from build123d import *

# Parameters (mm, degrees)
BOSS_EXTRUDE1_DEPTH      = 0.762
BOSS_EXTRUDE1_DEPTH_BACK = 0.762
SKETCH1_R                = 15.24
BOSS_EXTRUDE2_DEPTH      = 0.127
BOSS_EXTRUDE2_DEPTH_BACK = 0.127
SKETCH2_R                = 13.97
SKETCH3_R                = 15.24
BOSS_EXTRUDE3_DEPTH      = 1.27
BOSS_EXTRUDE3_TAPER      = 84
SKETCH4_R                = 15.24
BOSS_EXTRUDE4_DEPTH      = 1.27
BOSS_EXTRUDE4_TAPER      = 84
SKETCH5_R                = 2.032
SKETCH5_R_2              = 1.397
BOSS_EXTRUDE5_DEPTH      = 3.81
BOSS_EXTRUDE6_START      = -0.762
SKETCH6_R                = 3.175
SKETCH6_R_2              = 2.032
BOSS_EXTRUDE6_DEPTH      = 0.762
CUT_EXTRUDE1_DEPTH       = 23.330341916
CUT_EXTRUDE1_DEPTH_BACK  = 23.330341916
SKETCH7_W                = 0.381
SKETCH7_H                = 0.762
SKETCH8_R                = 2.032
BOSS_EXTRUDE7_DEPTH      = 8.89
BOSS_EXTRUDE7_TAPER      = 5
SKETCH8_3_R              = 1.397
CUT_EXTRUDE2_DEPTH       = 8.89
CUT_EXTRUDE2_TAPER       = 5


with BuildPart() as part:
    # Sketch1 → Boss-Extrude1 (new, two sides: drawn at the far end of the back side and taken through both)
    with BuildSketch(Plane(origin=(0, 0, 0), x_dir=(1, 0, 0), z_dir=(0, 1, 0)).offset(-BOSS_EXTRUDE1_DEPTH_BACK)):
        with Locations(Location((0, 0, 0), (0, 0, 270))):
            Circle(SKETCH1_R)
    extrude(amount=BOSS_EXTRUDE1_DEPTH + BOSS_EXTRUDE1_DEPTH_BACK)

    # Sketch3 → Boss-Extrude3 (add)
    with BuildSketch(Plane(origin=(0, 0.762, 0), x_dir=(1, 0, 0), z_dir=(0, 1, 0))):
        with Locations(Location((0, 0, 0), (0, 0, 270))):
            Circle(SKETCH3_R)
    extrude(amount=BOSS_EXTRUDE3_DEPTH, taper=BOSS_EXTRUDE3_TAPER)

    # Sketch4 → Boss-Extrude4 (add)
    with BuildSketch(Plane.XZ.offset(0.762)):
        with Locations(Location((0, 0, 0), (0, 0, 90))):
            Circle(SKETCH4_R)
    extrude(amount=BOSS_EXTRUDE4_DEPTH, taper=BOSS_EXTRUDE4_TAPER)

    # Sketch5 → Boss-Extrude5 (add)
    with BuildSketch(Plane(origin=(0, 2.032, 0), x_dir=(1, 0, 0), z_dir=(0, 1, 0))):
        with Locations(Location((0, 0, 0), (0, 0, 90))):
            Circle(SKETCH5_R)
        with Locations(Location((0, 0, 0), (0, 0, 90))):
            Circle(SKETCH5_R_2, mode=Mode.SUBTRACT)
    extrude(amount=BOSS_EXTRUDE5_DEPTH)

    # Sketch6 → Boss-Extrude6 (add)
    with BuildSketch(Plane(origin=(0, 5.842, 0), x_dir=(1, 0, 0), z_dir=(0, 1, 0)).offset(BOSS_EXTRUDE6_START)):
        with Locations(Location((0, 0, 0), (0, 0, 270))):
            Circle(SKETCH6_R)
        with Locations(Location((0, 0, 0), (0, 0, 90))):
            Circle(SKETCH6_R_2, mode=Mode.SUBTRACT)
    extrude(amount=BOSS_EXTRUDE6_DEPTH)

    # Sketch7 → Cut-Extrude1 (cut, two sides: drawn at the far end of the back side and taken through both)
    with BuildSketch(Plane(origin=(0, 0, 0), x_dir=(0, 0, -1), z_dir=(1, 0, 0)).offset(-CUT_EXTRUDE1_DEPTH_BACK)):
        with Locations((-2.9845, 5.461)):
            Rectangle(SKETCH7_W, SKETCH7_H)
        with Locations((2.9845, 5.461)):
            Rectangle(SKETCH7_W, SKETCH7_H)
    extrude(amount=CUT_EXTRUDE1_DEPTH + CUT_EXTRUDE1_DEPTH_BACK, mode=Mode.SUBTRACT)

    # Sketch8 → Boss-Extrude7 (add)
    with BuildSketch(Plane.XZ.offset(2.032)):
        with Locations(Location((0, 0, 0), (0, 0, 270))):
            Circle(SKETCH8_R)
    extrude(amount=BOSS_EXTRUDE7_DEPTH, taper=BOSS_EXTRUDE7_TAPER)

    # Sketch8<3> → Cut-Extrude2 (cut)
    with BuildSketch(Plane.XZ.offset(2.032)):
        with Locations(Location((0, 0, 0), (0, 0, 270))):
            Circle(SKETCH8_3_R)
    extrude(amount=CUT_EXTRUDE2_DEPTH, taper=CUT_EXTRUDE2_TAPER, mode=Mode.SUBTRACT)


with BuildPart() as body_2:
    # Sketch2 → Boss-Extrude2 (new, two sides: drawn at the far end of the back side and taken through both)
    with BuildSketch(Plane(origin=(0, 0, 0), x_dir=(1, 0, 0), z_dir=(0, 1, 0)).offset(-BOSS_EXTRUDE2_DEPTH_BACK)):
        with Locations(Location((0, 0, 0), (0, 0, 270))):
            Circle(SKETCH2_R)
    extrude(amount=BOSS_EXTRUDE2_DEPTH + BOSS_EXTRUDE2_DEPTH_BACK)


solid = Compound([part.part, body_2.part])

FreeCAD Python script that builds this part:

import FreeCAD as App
import Part
import Sketcher
from FreeCAD import Vector
Q = App.Units.Quantity

doc = App.newDocument("Part")
body = doc.addObject("PartDesign::Body", "Body")

# Sketch on XZ plane
sketch1 = body.newObject("Sketcher::SketchObject", "Sketch")
sketch1.AttachmentSupport = (doc.getObject("XZ_Plane"), [""])
sketch1.MapMode = "FlatFace"
sketch1.addGeometry(Part.Circle(Vector(0, 0, 0), Vector(0, 0, 1), 15), False)
sketch1.addConstraint(Sketcher.Constraint("Coincident", 0, 3, -1, 1))
sketch1.addConstraint(Sketcher.Constraint("Diameter", 0, Q("1.2 in")))
pad1 = body.newObject("PartDesign::Pad", "Pad")
pad1.Profile = sketch1
pad1.Type = "TwoLengths"
pad1.Length = Q("0.03 in")
pad1.Length2 = Q("0.03 in")
pad1.Reversed = True

# Sketch on XZ plane
sketch2 = body.newObject("Sketcher::SketchObject", "Sketch001")
sketch2.AttachmentSupport = (doc.getObject("XZ_Plane"), [""])
sketch2.MapMode = "FlatFace"
sketch2.AttachmentOffset = App.Placement(Vector(0, 0, -0.03 * 25.4), App.Rotation())
sketch2.addGeometry(Part.Circle(Vector(0, 0, 0), Vector(0, 0, 1), 15), False)
sketch2.addConstraint(Sketcher.Constraint("Coincident", 0, 3, -1, 1))
sketch2.addConstraint(Sketcher.Constraint("Diameter", 0, Q("1.2 in")))
pad2 = body.newObject("PartDesign::Pad", "Pad001")
pad2.Profile = sketch2
pad2.Length = Q("0.05 in")
pad2.Reversed = True
pad2.TaperAngle = -84

# Sketch on XZ plane
sketch3 = body.newObject("Sketcher::SketchObject", "Sketch002")
sketch3.AttachmentSupport = (doc.getObject("XZ_Plane"), [""])
sketch3.MapMode = "FlatFace"
sketch3.AttachmentOffset = App.Placement(Vector(0, 0, 0.03 * 25.4), App.Rotation())
sketch3.addGeometry(Part.Circle(Vector(0, 0, 0), Vector(0, 0, 1), 15), False)
sketch3.addConstraint(Sketcher.Constraint("Coincident", 0, 3, -1, 1))
sketch3.addConstraint(Sketcher.Constraint("Diameter", 0, Q("1.2 in")))
pad3 = body.newObject("PartDesign::Pad", "Pad002")
pad3.Profile = sketch3
pad3.Length = Q("0.05 in")
pad3.TaperAngle = -84

# Sketch on XZ plane
sketch4 = body.newObject("Sketcher::SketchObject", "Sketch003")
sketch4.AttachmentSupport = (doc.getObject("XZ_Plane"), [""])
sketch4.MapMode = "FlatFace"
sketch4.AttachmentOffset = App.Placement(Vector(0, 0, -0.08 * 25.4), App.Rotation())
sketch4.addGeometry(Part.Circle(Vector(0, 0, 0), Vector(0, 0, 1), 2), False)
sketch4.addGeometry(Part.Circle(Vector(0, 0, 0), Vector(0, 0, 1), 1.4), False)
sketch4.addConstraint(Sketcher.Constraint("Coincident", 0, 3, -1, 1))
sketch4.addConstraint(Sketcher.Constraint("Coincident", 1, 3, -1, 1))
sketch4.addConstraint(Sketcher.Constraint("Diameter", 0, Q("0.16 in")))
sketch4.addConstraint(Sketcher.Constraint("Diameter", 1, Q("0.11 in")))
pad4 = body.newObject("PartDesign::Pad", "Pad003")
pad4.Profile = sketch4
pad4.Length = Q("0.15 in")
pad4.Reversed = True

# Sketch on XZ plane
sketch5 = body.newObject("Sketcher::SketchObject", "Sketch004")
sketch5.AttachmentSupport = (doc.getObject("XZ_Plane"), [""])
sketch5.MapMode = "FlatFace"
sketch5.AttachmentOffset = App.Placement(Vector(0, 0, -0.2 * 25.4), App.Rotation())
sketch5.addGeometry(Part.Circle(Vector(0, 0, 0), Vector(0, 0, 1), 3.2), False)
sketch5.addGeometry(Part.Circle(Vector(0, 0, 0), Vector(0, 0, 1), 2), False)
sketch5.addConstraint(Sketcher.Constraint("Coincident", 0, 3, -1, 1))
sketch5.addConstraint(Sketcher.Constraint("Coincident", 1, 3, -1, 1))
sketch5.addConstraint(Sketcher.Constraint("Diameter", 0, Q("0.25 in")))
sketch5.addConstraint(Sketcher.Constraint("Diameter", 1, Q("0.16 in")))
pad5 = body.newObject("PartDesign::Pad", "Pad004")
pad5.Profile = sketch5
pad5.Length = Q("0.03 in")
pad5.Reversed = True

# Sketch on YZ plane
sketch6 = body.newObject("Sketcher::SketchObject", "Sketch005")
sketch6.AttachmentSupport = (doc.getObject("YZ_Plane"), [""])
sketch6.MapMode = "FlatFace"
sketch6.addGeometry(Part.LineSegment(Vector(5.84, 3.17, 0), Vector(5.08, 3.17, 0)), False)
sketch6.addGeometry(Part.LineSegment(Vector(5.08, 3.17, 0), Vector(5.08, 2.79, 0)), False)
sketch6.addGeometry(Part.LineSegment(Vector(5.08, 2.79, 0), Vector(5.84, 2.79, 0)), False)
sketch6.addGeometry(Part.LineSegment(Vector(5.84, 2.79, 0), Vector(5.84, 3.17, 0)), False)
sketch6.addGeometry(Part.LineSegment(Vector(5.84, -2.79, 0), Vector(5.08, -2.79, 0)), False)
sketch6.addGeometry(Part.LineSegment(Vector(5.08, -2.79, 0), Vector(5.08, -3.17, 0)), False)
sketch6.addGeometry(Part.LineSegment(Vector(5.08, -3.17, 0), Vector(5.84, -3.17, 0)), False)
sketch6.addGeometry(Part.LineSegment(Vector(5.84, -3.17, 0), Vector(5.84, -2.79, 0)), False)
sketch6.addConstraint(Sketcher.Constraint("Coincident", 0, 2, 1, 1))
sketch6.addConstraint(Sketcher.Constraint("Coincident", 1, 2, 2, 1))
sketch6.addConstraint(Sketcher.Constraint("Coincident", 2, 2, 3, 1))
sketch6.addConstraint(Sketcher.Constraint("Coincident", 3, 2, 0, 1))
sketch6.addConstraint(Sketcher.Constraint("Coincident", 4, 2, 5, 1))
sketch6.addConstraint(Sketcher.Constraint("Coincident", 5, 2, 6, 1))
sketch6.addConstraint(Sketcher.Constraint("Coincident", 6, 2, 7, 1))
sketch6.addConstraint(Sketcher.Constraint("Coincident", 7, 2, 4, 1))
sketch6.addConstraint(Sketcher.Constraint("Horizontal", 0))
sketch6.addConstraint(Sketcher.Constraint("Vertical", 1))
sketch6.addConstraint(Sketcher.Constraint("Horizontal", 2))
sketch6.addConstraint(Sketcher.Constraint("Vertical", 3))
sketch6.addConstraint(Sketcher.Constraint("Horizontal", 4))
sketch6.addConstraint(Sketcher.Constraint("Vertical", 5))
sketch6.addConstraint(Sketcher.Constraint("Horizontal", 6))
sketch6.addConstraint(Sketcher.Constraint("Vertical", 7))
sketch6.addConstraint(Sketcher.Constraint("Symmetric", 1, 2, 4, 2, -1))
sketch6.addConstraint(Sketcher.Constraint("Symmetric", 3, 2, 6, 2, -1))
sketch6.addConstraint(Sketcher.Constraint("DistanceX", 0, 2, 0, 1, Q("0.03 in")))
sketch6.addConstraint(Sketcher.Constraint("DistanceX", -1, 1, 0, 2, Q("0.2 in")))
sketch6.addConstraint(Sketcher.Constraint("DistanceY", 1, 2, 1, 1, Q("0.015 in")))
sketch6.addConstraint(Sketcher.Constraint("DistanceY", -1, 1, 1, 2, Q("0.11 in")))
pocket1 = body.newObject("PartDesign::Pocket", "Pocket")
pocket1.Profile = sketch6
pocket1.Type = "ThroughAll"
pocket1.Midplane = True

# Sketch on XZ plane
sketch7 = body.newObject("Sketcher::SketchObject", "Sketch006")
sketch7.AttachmentSupport = (doc.getObject("XZ_Plane"), [""])
sketch7.MapMode = "FlatFace"
sketch7.AttachmentOffset = App.Placement(Vector(0, 0, 0.08 * 25.4), App.Rotation())
sketch7.addGeometry(Part.Circle(Vector(0, 0, 0), Vector(0, 0, 1), 2), False)
sketch7.addConstraint(Sketcher.Constraint("Coincident", 0, 3, -1, 1))
sketch7.addConstraint(Sketcher.Constraint("Diameter", 0, Q("0.16 in")))
pad6 = body.newObject("PartDesign::Pad", "Pad005")
pad6.Profile = sketch7
pad6.Length = Q("0.35 in")
pad6.TaperAngle = -5

# Sketch on XZ plane
sketch8 = body.newObject("Sketcher::SketchObject", "Sketch007")
sketch8.AttachmentSupport = (doc.getObject("XZ_Plane"), [""])
sketch8.MapMode = "FlatFace"
sketch8.AttachmentOffset = App.Placement(Vector(0, 0, 0.08 * 25.4), App.Rotation())
sketch8.addGeometry(Part.Circle(Vector(0, 0, 0), Vector(0, 0, 1), 1.4), False)
sketch8.addConstraint(Sketcher.Constraint("Coincident", 0, 3, -1, 1))
sketch8.addConstraint(Sketcher.Constraint("Diameter", 0, Q("0.11 in")))
pocket2 = body.newObject("PartDesign::Pocket", "Pocket001")
pocket2.Profile = sketch8
pocket2.Length = Q("0.35 in")
pocket2.Reversed = True
pocket2.TaperAngle = -5
body2 = doc.addObject("PartDesign::Body", "Body001")

# Sketch on XZ plane
sketch9 = body2.newObject("Sketcher::SketchObject", "Sketch008")
sketch9.AttachmentSupport = (doc.getObject("XZ_Plane001"), [""])
sketch9.MapMode = "FlatFace"
sketch9.addGeometry(Part.Circle(Vector(0, 0, 0), Vector(0, 0, 1), 14), False)
sketch9.addConstraint(Sketcher.Constraint("Coincident", 0, 3, -1, 1))
sketch9.addConstraint(Sketcher.Constraint("Diameter", 0, Q("1.1 in")))
pad7 = body2.newObject("PartDesign::Pad", "Pad006")
pad7.Profile = sketch9
pad7.Type = "TwoLengths"
pad7.Length = Q("0.005 in")
pad7.Length2 = Q("0.005 in")
pad7.Reversed = True

doc.recompute()
